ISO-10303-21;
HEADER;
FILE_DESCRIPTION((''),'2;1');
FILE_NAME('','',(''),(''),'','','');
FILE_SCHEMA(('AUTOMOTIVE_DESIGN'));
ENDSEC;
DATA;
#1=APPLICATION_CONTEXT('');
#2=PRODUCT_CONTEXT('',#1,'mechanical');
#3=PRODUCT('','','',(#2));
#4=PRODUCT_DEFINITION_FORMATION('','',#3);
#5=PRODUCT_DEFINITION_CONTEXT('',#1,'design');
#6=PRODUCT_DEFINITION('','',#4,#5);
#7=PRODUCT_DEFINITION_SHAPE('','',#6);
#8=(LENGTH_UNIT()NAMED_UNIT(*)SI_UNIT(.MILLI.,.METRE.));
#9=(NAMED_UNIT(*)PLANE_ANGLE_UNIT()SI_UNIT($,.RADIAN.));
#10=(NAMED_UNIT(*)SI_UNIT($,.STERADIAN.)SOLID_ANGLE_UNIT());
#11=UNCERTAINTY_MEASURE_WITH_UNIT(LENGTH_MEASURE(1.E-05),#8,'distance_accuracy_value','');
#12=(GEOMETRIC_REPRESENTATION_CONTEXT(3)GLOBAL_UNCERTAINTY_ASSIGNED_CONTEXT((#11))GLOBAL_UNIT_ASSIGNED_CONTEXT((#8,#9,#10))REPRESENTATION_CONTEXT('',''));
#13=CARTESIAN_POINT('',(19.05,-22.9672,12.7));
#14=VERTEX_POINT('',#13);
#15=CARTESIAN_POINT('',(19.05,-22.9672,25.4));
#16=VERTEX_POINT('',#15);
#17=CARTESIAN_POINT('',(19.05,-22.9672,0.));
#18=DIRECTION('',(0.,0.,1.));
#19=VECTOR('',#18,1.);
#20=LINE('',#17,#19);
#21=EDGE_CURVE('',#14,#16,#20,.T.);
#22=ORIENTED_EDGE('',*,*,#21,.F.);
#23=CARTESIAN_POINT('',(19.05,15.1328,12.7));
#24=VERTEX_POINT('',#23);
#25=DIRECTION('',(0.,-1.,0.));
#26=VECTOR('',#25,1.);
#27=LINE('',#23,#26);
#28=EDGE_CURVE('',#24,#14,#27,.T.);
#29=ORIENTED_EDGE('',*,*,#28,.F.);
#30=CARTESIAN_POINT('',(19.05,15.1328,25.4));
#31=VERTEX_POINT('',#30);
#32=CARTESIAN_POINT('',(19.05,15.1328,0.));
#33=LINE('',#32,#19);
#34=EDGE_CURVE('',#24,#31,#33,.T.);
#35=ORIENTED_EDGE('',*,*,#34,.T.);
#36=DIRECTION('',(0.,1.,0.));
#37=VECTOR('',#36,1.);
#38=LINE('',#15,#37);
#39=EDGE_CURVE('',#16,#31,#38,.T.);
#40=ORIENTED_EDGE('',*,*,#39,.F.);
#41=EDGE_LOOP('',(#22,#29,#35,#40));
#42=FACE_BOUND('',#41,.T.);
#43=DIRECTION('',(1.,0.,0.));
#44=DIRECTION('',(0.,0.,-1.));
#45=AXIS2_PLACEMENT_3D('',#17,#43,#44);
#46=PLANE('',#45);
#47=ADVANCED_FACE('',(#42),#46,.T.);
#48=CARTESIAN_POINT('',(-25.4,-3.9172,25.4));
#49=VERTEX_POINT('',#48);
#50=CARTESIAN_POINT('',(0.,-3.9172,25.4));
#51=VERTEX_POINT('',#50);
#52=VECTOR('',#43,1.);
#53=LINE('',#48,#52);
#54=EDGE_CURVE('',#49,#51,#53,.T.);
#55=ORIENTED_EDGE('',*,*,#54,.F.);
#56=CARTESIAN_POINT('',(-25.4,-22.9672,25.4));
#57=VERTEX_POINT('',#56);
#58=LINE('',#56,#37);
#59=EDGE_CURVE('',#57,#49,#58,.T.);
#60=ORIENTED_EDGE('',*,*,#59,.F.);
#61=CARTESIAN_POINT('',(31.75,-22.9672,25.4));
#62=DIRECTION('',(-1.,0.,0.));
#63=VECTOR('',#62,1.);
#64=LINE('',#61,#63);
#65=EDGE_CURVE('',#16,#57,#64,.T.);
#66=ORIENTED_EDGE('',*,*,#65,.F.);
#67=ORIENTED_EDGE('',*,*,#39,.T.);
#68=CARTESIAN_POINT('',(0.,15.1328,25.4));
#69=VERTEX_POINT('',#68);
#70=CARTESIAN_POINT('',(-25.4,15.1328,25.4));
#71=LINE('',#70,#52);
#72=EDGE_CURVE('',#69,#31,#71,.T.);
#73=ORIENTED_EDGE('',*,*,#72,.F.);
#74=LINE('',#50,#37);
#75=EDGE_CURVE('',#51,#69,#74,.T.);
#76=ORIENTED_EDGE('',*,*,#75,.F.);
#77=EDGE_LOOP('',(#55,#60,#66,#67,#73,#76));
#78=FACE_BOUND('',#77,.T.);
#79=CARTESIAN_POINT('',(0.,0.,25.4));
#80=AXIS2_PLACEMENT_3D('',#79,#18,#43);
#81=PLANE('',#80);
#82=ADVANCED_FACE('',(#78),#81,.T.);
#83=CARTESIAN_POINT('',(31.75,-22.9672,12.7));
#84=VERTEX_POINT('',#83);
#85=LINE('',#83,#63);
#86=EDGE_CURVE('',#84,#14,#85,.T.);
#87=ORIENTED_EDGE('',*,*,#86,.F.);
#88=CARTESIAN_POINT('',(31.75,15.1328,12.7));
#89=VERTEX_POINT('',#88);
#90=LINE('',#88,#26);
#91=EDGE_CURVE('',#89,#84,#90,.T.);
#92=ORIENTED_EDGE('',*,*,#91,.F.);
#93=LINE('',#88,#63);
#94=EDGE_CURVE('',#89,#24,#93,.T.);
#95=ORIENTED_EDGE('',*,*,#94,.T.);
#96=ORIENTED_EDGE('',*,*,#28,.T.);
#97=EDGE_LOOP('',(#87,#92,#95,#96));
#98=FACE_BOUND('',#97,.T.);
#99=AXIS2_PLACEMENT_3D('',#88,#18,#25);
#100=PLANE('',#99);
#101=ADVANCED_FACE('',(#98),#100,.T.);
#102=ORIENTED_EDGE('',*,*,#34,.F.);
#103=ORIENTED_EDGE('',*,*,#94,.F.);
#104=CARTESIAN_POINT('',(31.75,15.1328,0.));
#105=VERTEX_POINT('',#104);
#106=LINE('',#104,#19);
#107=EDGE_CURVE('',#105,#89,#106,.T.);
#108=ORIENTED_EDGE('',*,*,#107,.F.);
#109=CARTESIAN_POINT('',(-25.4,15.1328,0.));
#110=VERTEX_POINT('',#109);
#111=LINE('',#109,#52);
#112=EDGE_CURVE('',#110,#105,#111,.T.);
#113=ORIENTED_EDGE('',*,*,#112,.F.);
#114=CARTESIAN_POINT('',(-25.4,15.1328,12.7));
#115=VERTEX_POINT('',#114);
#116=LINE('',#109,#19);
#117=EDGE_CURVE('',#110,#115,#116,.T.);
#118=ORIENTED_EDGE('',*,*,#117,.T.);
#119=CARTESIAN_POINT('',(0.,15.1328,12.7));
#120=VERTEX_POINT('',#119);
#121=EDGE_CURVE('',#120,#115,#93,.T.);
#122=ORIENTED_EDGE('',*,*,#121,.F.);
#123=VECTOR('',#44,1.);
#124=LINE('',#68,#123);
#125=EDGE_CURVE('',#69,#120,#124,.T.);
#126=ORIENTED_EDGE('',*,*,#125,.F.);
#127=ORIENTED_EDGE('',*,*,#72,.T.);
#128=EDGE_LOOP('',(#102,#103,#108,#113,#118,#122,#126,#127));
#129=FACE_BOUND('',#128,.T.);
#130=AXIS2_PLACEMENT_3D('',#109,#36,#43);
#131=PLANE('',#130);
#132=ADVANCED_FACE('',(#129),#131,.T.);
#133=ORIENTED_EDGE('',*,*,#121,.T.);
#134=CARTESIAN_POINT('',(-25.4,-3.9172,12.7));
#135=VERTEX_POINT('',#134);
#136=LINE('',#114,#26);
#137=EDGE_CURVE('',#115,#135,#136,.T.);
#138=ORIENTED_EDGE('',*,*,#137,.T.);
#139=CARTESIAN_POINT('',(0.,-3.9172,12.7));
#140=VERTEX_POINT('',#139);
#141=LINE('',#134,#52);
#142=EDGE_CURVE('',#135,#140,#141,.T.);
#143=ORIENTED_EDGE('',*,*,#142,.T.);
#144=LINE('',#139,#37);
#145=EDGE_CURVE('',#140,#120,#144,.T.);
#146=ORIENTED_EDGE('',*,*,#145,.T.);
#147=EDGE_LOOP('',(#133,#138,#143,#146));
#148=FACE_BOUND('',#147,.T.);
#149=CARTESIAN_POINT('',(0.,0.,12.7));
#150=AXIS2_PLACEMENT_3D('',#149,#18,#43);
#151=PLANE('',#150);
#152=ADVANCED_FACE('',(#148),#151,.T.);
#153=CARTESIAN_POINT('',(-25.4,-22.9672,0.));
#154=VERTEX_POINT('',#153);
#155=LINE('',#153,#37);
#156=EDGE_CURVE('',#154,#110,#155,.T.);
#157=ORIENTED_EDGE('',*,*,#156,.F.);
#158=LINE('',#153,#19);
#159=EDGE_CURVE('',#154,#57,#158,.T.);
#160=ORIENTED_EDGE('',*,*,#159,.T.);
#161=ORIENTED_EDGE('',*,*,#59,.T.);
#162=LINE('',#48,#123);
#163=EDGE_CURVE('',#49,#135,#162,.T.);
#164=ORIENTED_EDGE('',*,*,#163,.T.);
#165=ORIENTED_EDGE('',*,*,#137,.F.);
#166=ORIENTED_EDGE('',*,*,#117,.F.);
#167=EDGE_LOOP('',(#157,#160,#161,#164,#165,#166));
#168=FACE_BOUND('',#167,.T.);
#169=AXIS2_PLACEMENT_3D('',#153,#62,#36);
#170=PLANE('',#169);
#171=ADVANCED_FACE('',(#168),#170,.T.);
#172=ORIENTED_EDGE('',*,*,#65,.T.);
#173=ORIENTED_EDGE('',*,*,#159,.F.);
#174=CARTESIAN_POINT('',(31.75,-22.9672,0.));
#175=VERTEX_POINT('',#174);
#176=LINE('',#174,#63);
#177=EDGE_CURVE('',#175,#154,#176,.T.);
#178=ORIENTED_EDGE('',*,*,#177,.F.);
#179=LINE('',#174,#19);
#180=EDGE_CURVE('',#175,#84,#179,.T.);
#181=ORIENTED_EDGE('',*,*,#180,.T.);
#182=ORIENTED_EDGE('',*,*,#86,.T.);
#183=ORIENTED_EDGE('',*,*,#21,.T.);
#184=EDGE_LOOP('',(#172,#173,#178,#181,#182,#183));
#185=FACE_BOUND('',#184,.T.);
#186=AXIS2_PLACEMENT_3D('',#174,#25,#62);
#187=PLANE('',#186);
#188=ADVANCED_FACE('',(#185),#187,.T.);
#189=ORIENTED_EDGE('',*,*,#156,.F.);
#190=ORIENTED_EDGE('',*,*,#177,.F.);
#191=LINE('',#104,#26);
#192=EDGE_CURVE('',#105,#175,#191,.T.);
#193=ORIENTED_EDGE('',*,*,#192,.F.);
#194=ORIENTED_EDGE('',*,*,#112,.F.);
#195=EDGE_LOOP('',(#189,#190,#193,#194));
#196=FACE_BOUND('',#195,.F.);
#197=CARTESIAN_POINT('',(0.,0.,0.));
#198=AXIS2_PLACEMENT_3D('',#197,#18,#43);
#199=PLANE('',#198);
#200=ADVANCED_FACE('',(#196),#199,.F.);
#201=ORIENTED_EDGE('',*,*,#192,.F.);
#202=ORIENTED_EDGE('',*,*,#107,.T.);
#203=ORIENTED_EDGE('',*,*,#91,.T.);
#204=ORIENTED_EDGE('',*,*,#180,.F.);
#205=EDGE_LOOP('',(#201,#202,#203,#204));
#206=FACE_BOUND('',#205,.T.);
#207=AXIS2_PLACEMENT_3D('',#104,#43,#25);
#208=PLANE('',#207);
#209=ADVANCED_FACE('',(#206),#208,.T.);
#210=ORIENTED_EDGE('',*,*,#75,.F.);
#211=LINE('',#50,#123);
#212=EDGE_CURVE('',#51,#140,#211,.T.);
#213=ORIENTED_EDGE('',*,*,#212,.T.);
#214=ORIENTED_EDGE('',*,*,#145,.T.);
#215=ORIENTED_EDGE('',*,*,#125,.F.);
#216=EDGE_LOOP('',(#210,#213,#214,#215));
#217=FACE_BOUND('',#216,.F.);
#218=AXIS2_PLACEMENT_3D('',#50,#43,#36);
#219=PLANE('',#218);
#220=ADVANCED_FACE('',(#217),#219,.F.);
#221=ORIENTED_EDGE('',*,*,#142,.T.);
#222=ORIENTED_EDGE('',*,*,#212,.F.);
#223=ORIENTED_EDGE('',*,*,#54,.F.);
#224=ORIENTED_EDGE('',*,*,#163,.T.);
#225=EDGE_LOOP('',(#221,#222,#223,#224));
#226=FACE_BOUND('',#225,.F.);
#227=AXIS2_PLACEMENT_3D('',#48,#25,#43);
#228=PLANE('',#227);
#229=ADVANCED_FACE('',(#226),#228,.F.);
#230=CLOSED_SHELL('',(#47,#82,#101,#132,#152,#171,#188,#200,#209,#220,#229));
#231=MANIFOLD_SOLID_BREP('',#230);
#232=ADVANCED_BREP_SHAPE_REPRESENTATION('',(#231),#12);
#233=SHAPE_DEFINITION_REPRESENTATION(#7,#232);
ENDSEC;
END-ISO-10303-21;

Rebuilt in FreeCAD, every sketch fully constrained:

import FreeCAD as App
import Part
import Sketcher
from FreeCAD import Vector
Q = App.Units.Quantity


def add_polygon(sketch, points):
    """Adds a closed chain of lines whose ends are joined by coincident constraints."""
    first, n = sketch.GeometryCount, len(points)
    for a, b in zip(points, points[1:] + points[:1]):
        sketch.addGeometry(Part.LineSegment(App.Vector(*a, 0), App.Vector(*b, 0)), False)
    for i in range(n):
        sketch.addConstraint(Sketcher.Constraint("Coincident", first + i, 2, first + (i + 1) % n, 1))

doc = App.newDocument("Part")
body = doc.addObject("PartDesign::Body", "Body")

# Sketch on XY plane
sketch1 = body.newObject("Sketcher::SketchObject", "Sketch")
sketch1.AttachmentSupport = (doc.getObject("XY_Plane"), [""])
sketch1.MapMode = "FlatFace"
add_polygon(sketch1, [(32, 15), (-25, 15), (-25, -23), (32, -23)])  # lines 0-3
sketch1.addConstraint([
    Sketcher.Constraint("Horizontal", 0),
    Sketcher.Constraint("Vertical", 1),
    Sketcher.Constraint("Horizontal", 2),
    Sketcher.Constraint("Vertical", 3),
    Sketcher.Constraint("DistanceY", 1, 2, 1, 1, Q("1.5 in")),
    Sketcher.Constraint("DistanceX", 0, 2, 0, 1, Q("2.25 in")),
    Sketcher.Constraint("DistanceX", 0, 2, -1, 1, Q("1 in")),
    Sketcher.Constraint("DistanceY", -1, 1, 0, 2, 15.1328),
])
pad1 = body.newObject("PartDesign::Pad", "Pad")
pad1.Profile = sketch1
pad1.Length = Q("1 in")

# Sketch on XY plane
sketch2 = body.newObject("Sketcher::SketchObject", "Sketch001")
sketch2.AttachmentSupport = (doc.getObject("XY_Plane"), [""])
sketch2.MapMode = "FlatFace"
sketch2.AttachmentOffset = App.Placement(Vector(0, 0, 1 * 25.4), App.Rotation())
add_polygon(sketch2, [(0, 15), (-25, 15), (-25, -4), (0, -4)])  # lines 0-3
sketch2.addConstraint([
    Sketcher.Constraint("Horizontal", 0),
    Sketcher.Constraint("Vertical", 1),
    Sketcher.Constraint("Horizontal", 2),
    Sketcher.Constraint("Vertical", 3),
    Sketcher.Constraint("PointOnObject", 2, 2, -2),
    Sketcher.Constraint("DistanceX", 0, 2, 0, 1, Q("1 in")),
    Sketcher.Constraint("DistanceY", 1, 2, 1, 1, Q("0.75 in")),
    Sketcher.Constraint("DistanceY", -1, 1, 0, 2, 15.1328),
])
pocket1 = body.newObject("PartDesign::Pocket", "Pocket")
pocket1.Profile = sketch2
pocket1.Length = Q("0.5 in")

# Sketch on YZ plane
sketch3 = body.newObject("Sketcher::SketchObject", "Sketch002")
sketch3.AttachmentSupport = (doc.getObject("YZ_Plane"), [""])
sketch3.MapMode = "FlatFace"
sketch3.AttachmentOffset = App.Placement(Vector(0, 0, 1.25 * 25.4), App.Rotation())
add_polygon(sketch3, [(-23, 25), (-23, 13), (15, 13), (15, 25)])  # lines 0-3
sketch3.addConstraint([
    Sketcher.Constraint("Vertical", 0),
    Sketcher.Constraint("Horizontal", 1),
    Sketcher.Constraint("Vertical", 2),
    Sketcher.Constraint("Horizontal", 3),
    Sketcher.Constraint("DistanceY", 0, 2, 0, 1, Q("0.5 in")),
    Sketcher.Constraint("DistanceY", -1, 1, 0, 2, Q("0.5 in")),
    Sketcher.Constraint("DistanceX", 1, 1, 1, 2, Q("1.5 in")),
    Sketcher.Constraint("DistanceX", 0, 2, -1, 1, 22.9672),
])
pocket2 = body.newObject("PartDesign::Pocket", "Pocket001")
pocket2.Profile = sketch3
pocket2.Length = Q("0.5 in")

doc.recompute()
